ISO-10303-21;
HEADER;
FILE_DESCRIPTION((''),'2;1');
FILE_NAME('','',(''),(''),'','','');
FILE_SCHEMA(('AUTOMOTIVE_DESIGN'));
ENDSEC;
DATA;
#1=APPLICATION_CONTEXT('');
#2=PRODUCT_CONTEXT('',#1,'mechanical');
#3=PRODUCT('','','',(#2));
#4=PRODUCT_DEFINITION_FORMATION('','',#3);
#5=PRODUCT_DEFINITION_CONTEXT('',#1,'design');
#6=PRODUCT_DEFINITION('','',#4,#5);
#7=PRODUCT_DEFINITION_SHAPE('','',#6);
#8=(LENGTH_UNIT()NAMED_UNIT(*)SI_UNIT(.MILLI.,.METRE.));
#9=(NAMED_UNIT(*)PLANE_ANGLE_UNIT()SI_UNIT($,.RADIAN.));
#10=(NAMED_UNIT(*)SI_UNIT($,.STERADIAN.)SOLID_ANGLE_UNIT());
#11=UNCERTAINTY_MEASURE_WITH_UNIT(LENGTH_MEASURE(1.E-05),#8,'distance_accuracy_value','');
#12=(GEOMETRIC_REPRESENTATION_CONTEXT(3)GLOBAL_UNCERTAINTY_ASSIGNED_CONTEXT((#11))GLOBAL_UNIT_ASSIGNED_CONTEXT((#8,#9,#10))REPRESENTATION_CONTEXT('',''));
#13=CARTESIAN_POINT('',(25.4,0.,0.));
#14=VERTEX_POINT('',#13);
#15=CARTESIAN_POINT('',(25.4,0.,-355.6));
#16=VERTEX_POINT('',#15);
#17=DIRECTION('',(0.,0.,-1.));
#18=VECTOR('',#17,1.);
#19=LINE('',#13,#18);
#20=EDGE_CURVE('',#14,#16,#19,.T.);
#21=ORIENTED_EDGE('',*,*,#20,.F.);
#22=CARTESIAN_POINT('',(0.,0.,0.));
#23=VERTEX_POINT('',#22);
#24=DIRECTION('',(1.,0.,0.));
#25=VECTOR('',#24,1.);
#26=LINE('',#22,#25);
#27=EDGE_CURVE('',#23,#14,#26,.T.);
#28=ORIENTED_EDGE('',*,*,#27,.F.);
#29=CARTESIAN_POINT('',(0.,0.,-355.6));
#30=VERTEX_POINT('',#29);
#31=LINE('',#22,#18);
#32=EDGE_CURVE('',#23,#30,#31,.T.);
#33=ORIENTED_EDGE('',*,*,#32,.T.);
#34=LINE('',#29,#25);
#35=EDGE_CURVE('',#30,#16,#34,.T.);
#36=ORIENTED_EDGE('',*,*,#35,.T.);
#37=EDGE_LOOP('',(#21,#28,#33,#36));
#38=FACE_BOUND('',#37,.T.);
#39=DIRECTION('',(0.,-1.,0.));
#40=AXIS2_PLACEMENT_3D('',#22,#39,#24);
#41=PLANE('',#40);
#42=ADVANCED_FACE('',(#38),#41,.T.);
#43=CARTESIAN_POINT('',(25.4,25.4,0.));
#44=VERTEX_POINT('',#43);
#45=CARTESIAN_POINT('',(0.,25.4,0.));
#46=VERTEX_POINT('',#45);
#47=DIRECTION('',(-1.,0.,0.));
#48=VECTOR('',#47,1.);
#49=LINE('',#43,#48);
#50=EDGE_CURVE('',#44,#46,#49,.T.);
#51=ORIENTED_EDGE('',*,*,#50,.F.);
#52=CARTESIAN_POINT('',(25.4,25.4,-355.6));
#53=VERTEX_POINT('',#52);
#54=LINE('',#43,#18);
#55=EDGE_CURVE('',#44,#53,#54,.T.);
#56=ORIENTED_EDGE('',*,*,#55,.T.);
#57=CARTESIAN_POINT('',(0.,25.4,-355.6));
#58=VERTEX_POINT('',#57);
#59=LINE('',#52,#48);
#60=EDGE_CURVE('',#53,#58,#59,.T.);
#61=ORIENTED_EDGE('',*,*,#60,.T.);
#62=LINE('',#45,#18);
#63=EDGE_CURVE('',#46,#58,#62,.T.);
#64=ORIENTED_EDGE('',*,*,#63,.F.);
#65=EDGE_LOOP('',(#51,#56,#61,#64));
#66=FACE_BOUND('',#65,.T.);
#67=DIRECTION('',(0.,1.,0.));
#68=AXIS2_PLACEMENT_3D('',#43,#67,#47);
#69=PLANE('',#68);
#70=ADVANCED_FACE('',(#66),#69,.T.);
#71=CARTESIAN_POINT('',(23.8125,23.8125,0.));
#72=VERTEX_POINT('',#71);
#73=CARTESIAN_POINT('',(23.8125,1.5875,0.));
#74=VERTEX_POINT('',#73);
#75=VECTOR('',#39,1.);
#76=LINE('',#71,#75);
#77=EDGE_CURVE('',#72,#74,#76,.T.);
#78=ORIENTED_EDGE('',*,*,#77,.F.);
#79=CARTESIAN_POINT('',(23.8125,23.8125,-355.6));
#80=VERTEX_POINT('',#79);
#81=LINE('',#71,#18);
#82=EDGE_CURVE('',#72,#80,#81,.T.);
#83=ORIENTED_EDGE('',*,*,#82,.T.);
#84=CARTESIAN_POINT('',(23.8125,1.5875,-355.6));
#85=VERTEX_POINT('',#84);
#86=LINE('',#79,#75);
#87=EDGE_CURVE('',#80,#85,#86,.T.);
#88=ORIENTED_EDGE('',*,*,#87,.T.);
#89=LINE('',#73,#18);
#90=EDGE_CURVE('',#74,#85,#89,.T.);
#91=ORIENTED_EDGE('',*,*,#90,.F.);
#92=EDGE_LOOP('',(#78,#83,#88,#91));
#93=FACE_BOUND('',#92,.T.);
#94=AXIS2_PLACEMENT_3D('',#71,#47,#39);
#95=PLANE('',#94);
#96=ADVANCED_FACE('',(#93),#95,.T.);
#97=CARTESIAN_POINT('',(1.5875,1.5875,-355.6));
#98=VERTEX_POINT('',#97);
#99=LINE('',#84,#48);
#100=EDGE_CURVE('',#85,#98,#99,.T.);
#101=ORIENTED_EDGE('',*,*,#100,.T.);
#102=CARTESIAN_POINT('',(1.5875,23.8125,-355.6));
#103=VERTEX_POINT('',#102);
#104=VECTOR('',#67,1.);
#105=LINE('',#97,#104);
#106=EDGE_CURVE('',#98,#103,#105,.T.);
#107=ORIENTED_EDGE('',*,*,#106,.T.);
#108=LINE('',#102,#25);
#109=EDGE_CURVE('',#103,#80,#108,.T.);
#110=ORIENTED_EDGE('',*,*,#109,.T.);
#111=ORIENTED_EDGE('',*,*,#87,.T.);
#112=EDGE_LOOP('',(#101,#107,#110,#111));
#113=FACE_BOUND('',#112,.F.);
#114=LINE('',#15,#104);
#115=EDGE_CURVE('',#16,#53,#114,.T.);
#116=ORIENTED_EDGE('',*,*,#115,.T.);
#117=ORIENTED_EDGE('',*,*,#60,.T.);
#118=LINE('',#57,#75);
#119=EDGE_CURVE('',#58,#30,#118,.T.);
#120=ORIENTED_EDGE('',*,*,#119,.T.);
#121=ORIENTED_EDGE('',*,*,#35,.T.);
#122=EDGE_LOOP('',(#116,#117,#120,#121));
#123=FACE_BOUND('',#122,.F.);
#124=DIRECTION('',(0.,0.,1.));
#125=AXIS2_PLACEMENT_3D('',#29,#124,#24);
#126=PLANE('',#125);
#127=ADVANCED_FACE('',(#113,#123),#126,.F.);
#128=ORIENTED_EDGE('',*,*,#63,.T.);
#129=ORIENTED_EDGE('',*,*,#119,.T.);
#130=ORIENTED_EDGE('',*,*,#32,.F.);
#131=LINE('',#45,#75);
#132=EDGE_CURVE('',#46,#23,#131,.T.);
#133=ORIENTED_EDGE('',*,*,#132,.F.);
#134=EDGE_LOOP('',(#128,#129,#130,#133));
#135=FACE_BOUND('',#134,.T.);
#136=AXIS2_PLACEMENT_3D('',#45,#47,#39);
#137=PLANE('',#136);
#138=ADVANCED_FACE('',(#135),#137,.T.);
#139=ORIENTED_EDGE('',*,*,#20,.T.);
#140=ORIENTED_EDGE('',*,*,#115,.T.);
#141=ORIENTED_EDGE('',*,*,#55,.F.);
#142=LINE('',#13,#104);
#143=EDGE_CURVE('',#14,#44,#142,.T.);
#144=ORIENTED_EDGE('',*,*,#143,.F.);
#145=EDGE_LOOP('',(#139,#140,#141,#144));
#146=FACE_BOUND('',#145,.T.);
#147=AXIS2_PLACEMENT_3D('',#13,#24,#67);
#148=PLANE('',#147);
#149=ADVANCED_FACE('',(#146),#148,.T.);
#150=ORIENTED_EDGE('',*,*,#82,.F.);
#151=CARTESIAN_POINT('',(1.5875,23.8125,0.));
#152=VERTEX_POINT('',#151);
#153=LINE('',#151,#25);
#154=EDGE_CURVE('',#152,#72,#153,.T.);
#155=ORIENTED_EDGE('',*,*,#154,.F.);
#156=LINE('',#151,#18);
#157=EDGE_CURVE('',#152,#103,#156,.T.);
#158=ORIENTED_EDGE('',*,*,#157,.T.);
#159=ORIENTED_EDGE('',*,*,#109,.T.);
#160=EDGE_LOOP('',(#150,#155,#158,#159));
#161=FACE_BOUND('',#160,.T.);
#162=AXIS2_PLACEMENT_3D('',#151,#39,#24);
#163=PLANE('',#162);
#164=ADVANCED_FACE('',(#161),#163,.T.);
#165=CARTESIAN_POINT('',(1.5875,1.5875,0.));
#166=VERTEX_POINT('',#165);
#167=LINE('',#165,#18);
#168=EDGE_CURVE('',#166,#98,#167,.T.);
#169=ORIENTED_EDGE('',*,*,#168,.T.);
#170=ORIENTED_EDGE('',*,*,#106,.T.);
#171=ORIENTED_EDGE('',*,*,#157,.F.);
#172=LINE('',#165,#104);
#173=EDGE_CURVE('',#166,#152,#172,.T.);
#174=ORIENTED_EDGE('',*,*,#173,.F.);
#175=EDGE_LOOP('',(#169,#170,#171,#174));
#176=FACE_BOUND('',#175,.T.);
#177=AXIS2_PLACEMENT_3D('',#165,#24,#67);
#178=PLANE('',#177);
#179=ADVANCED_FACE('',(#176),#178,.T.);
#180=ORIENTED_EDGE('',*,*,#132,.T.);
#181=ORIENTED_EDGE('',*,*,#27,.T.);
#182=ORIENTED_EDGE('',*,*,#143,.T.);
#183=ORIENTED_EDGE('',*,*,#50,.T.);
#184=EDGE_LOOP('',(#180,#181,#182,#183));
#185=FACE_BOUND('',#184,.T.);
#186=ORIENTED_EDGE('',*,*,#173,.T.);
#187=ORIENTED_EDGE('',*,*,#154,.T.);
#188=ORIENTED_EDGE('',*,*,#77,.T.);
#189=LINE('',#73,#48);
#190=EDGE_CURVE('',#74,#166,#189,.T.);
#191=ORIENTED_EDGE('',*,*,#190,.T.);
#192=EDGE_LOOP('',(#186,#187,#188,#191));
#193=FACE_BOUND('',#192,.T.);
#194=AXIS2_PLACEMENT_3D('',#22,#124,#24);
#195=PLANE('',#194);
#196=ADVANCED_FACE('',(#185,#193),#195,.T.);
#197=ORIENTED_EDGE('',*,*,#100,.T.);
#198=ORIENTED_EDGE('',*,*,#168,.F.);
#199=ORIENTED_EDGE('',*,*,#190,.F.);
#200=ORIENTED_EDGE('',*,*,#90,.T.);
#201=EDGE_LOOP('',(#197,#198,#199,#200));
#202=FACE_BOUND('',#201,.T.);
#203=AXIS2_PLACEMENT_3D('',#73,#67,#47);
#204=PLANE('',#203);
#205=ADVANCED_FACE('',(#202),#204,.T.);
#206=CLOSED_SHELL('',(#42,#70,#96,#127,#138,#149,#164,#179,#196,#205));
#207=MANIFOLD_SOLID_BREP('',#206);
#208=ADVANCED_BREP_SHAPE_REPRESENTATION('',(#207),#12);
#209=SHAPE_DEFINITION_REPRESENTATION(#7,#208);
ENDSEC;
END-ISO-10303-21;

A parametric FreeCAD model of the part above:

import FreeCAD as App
import Part
import Sketcher
from FreeCAD import Vector
Q = App.Units.Quantity

doc = App.newDocument("Part")
body = doc.addObject("PartDesign::Body", "Body")

sketch1 = body.newObject("Sketcher::SketchObject", "Sketch")
sketch1.AttachmentSupport = (doc.getObject("XY_Plane"), [""])
sketch1.MapMode = "FlatFace"
sketch1.addGeometry([
    Part.LineSegment(Vector(0, 25, 0), Vector(0, 0, 0)),
    Part.LineSegment(Vector(0, 0, 0), Vector(25, 0, 0)),
    Part.LineSegment(Vector(25, 0, 0), Vector(25, 25, 0)),
    Part.LineSegment(Vector(25, 25, 0), Vector(0, 25, 0)),
    Part.LineSegment(Vector(2, 2, 0), Vector(2, 24, 0)),
    Part.LineSegment(Vector(2, 24, 0), Vector(24, 24, 0)),
    Part.LineSegment(Vector(24, 24, 0), Vector(24, 2, 0)),
    Part.LineSegment(Vector(24, 2, 0), Vector(2, 2, 0)),
], False)
sketch1.addConstraint([
    Sketcher.Constraint("Coincident", 0, 2, 1, 1),
    Sketcher.Constraint("Coincident", 1, 2, 2, 1),
    Sketcher.Constraint("Coincident", 2, 2, 3, 1),
    Sketcher.Constraint("Coincident", 3, 2, 0, 1),
    Sketcher.Constraint("Coincident", 4, 2, 5, 1),
    Sketcher.Constraint("Coincident", 5, 2, 6, 1),
    Sketcher.Constraint("Coincident", 6, 2, 7, 1),
    Sketcher.Constraint("Coincident", 7, 2, 4, 1),
    Sketcher.Constraint("Vertical", 0),
    Sketcher.Constraint("Horizontal", 1),
    Sketcher.Constraint("Vertical", 2),
    Sketcher.Constraint("Horizontal", 3),
    Sketcher.Constraint("Vertical", 4),
    Sketcher.Constraint("Horizontal", 5),
    Sketcher.Constraint("Vertical", 6),
    Sketcher.Constraint("Horizontal", 7),
    Sketcher.Constraint("Coincident", 0, 2, -1, 1),
    Sketcher.Constraint("Equal", 3, 0),
    Sketcher.Constraint("Equal", 7, 4),
    Sketcher.Constraint("DistanceX", 1, 1, 1, 2, Q("1 in")),
    Sketcher.Constraint("DistanceX", -1, 1, 4, 2, Q("0.0625 in")),
    Sketcher.Constraint("DistanceY", -1, 1, 6, 2, Q("0.0625 in")),
    Sketcher.Constraint("DistanceY", 4, 2, 3, 2, Q("0.0625 in")),
])
pad1 = body.newObject("PartDesign::Pad", "Pad")
pad1.Profile = sketch1
pad1.Length = Q("14 in")
pad1.Reversed = True

doc.recompute()
